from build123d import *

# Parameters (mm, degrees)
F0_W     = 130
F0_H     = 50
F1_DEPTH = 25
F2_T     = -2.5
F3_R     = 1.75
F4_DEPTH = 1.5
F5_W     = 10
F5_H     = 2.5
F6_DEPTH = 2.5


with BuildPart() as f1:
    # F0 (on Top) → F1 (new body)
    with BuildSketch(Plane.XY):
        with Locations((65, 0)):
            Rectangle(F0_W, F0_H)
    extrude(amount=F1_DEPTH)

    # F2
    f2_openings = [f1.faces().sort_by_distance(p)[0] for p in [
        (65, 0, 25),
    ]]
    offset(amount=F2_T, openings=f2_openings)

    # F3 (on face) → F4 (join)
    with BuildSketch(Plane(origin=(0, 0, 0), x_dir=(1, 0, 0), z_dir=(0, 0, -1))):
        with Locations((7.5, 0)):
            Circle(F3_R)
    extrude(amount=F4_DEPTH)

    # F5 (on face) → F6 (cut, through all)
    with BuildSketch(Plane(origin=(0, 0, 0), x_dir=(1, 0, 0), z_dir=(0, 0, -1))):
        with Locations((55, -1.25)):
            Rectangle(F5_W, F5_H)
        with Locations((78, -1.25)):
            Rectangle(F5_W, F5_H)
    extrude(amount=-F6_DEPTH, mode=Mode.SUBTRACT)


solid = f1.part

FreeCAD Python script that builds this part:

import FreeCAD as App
import Part
import Sketcher
from FreeCAD import Vector
Q = App.Units.Quantity


def faces_at(feature, points):
    """Names of the faces that lie closest to the given points."""
    faces = feature.Shape.Faces
    near = lambda p: min(range(len(faces)), key=lambda i: faces[i].distToShape(Part.Vertex(*p))[0])
    return sorted({f"Face{near(p) + 1}" for p in points})


def add_polygon(sketch, points):
    """Adds a closed chain of lines whose ends are joined by coincident constraints."""
    first, n = sketch.GeometryCount, len(points)
    for a, b in zip(points, points[1:] + points[:1]):
        sketch.addGeometry(Part.LineSegment(App.Vector(*a, 0), App.Vector(*b, 0)), False)
    for i in range(n):
        sketch.addConstraint(Sketcher.Constraint("Coincident", first + i, 2, first + (i + 1) % n, 1))

doc = App.newDocument("Part")
body = doc.addObject("PartDesign::Body", "Body")

# Sketch on XY plane
sketch1 = body.newObject("Sketcher::SketchObject", "Sketch")
sketch1.AttachmentSupport = (doc.getObject("XY_Plane"), [""])
sketch1.MapMode = "FlatFace"
add_polygon(sketch1, [(0, 25), (0, -25), (130, -25), (130, 25)])  # lines 0-3
sketch1.addConstraint(Sketcher.Constraint("Vertical", 0))
sketch1.addConstraint(Sketcher.Constraint("Horizontal", 1))
sketch1.addConstraint(Sketcher.Constraint("Vertical", 2))
sketch1.addConstraint(Sketcher.Constraint("Horizontal", 3))
sketch1.addConstraint(Sketcher.Constraint("Symmetric", 0, 2, 3, 2, -1, 1))
sketch1.addConstraint(Sketcher.Constraint("DistanceX", 1, 1, 1, 2, Q("130 mm")))
sketch1.addConstraint(Sketcher.Constraint("DistanceY", 0, 2, 0, 1, Q("50 mm")))
pad1 = body.newObject("PartDesign::Pad", "Pad")
pad1.Profile = sketch1
pad1.Length = 25
doc.recompute()

thickness = body.newObject("PartDesign::Thickness", "Thickness")
thickness.Base = (pad1, faces_at(pad1, [(65, 0, 25)]))
thickness.Value = 2.5
thickness.Reversed = True
thickness.Join = "Arc"

# Sketch on XY plane
sketch2 = body.newObject("Sketcher::SketchObject", "Sketch001")
sketch2.AttachmentSupport = (doc.getObject("XY_Plane"), [""])
sketch2.MapMode = "FlatFace"
sketch2.addGeometry(Part.Circle(Vector(7.5, 0, 0), Vector(0, 0, 1), 1.8), False)
sketch2.addConstraint(Sketcher.Constraint("PointOnObject", 0, 3, -1))
sketch2.addConstraint(Sketcher.Constraint("Diameter", 0, Q("3.5 mm")))
sketch2.addConstraint(Sketcher.Constraint("DistanceX", -1, 1, 0, 3, Q("7.5 mm")))
pad2 = body.newObject("PartDesign::Pad", "Pad001")
pad2.Profile = sketch2
pad2.Length = 1.5
pad2.Reversed = True

# Sketch on XY plane
sketch3 = body.newObject("Sketcher::SketchObject", "Sketch002")
sketch3.AttachmentSupport = (doc.getObject("XY_Plane"), [""])
sketch3.MapMode = "FlatFace"
add_polygon(sketch3, [(50, 0), (50, 2.5), (60, 2.5), (60, 0)])  # lines 0-3
add_polygon(sketch3, [(73, 0), (73, 2.5), (83, 2.5), (83, 0)])  # lines 4-7
sketch3.addConstraint(Sketcher.Constraint("Vertical", 0))
sketch3.addConstraint(Sketcher.Constraint("Horizontal", 1))
sketch3.addConstraint(Sketcher.Constraint("Vertical", 2))
sketch3.addConstraint(Sketcher.Constraint("Horizontal", 3))
sketch3.addConstraint(Sketcher.Constraint("Vertical", 4))
sketch3.addConstraint(Sketcher.Constraint("Horizontal", 5))
sketch3.addConstraint(Sketcher.Constraint("Vertical", 6))
sketch3.addConstraint(Sketcher.Constraint("Horizontal", 7))
sketch3.addConstraint(Sketcher.Constraint("PointOnObject", 2, 2, -1))
sketch3.addConstraint(Sketcher.Constraint("PointOnObject", 6, 2, -1))
sketch3.addConstraint(Sketcher.Constraint("Horizontal", 1, 2, 4, 2))
sketch3.addConstraint(Sketcher.Constraint("Equal", 3, 5))
sketch3.addConstraint(Sketcher.Constraint("DistanceX", 1, 1, 1, 2, Q("10 mm")))
sketch3.addConstraint(Sketcher.Constraint("DistanceY", 0, 1, 0, 2, Q("2.5 mm")))
sketch3.addConstraint(Sketcher.Constraint("DistanceX", -1, 1, 0, 2, Q("50 mm")))
sketch3.addConstraint(Sketcher.Constraint("DistanceX", -1, 1, 4, 2, Q("73 mm")))
pocket1 = body.newObject("PartDesign::Pocket", "Pocket")
pocket1.Profile = sketch3
pocket1.Type = "ThroughAll"
pocket1.Reversed = True

doc.recompute()
